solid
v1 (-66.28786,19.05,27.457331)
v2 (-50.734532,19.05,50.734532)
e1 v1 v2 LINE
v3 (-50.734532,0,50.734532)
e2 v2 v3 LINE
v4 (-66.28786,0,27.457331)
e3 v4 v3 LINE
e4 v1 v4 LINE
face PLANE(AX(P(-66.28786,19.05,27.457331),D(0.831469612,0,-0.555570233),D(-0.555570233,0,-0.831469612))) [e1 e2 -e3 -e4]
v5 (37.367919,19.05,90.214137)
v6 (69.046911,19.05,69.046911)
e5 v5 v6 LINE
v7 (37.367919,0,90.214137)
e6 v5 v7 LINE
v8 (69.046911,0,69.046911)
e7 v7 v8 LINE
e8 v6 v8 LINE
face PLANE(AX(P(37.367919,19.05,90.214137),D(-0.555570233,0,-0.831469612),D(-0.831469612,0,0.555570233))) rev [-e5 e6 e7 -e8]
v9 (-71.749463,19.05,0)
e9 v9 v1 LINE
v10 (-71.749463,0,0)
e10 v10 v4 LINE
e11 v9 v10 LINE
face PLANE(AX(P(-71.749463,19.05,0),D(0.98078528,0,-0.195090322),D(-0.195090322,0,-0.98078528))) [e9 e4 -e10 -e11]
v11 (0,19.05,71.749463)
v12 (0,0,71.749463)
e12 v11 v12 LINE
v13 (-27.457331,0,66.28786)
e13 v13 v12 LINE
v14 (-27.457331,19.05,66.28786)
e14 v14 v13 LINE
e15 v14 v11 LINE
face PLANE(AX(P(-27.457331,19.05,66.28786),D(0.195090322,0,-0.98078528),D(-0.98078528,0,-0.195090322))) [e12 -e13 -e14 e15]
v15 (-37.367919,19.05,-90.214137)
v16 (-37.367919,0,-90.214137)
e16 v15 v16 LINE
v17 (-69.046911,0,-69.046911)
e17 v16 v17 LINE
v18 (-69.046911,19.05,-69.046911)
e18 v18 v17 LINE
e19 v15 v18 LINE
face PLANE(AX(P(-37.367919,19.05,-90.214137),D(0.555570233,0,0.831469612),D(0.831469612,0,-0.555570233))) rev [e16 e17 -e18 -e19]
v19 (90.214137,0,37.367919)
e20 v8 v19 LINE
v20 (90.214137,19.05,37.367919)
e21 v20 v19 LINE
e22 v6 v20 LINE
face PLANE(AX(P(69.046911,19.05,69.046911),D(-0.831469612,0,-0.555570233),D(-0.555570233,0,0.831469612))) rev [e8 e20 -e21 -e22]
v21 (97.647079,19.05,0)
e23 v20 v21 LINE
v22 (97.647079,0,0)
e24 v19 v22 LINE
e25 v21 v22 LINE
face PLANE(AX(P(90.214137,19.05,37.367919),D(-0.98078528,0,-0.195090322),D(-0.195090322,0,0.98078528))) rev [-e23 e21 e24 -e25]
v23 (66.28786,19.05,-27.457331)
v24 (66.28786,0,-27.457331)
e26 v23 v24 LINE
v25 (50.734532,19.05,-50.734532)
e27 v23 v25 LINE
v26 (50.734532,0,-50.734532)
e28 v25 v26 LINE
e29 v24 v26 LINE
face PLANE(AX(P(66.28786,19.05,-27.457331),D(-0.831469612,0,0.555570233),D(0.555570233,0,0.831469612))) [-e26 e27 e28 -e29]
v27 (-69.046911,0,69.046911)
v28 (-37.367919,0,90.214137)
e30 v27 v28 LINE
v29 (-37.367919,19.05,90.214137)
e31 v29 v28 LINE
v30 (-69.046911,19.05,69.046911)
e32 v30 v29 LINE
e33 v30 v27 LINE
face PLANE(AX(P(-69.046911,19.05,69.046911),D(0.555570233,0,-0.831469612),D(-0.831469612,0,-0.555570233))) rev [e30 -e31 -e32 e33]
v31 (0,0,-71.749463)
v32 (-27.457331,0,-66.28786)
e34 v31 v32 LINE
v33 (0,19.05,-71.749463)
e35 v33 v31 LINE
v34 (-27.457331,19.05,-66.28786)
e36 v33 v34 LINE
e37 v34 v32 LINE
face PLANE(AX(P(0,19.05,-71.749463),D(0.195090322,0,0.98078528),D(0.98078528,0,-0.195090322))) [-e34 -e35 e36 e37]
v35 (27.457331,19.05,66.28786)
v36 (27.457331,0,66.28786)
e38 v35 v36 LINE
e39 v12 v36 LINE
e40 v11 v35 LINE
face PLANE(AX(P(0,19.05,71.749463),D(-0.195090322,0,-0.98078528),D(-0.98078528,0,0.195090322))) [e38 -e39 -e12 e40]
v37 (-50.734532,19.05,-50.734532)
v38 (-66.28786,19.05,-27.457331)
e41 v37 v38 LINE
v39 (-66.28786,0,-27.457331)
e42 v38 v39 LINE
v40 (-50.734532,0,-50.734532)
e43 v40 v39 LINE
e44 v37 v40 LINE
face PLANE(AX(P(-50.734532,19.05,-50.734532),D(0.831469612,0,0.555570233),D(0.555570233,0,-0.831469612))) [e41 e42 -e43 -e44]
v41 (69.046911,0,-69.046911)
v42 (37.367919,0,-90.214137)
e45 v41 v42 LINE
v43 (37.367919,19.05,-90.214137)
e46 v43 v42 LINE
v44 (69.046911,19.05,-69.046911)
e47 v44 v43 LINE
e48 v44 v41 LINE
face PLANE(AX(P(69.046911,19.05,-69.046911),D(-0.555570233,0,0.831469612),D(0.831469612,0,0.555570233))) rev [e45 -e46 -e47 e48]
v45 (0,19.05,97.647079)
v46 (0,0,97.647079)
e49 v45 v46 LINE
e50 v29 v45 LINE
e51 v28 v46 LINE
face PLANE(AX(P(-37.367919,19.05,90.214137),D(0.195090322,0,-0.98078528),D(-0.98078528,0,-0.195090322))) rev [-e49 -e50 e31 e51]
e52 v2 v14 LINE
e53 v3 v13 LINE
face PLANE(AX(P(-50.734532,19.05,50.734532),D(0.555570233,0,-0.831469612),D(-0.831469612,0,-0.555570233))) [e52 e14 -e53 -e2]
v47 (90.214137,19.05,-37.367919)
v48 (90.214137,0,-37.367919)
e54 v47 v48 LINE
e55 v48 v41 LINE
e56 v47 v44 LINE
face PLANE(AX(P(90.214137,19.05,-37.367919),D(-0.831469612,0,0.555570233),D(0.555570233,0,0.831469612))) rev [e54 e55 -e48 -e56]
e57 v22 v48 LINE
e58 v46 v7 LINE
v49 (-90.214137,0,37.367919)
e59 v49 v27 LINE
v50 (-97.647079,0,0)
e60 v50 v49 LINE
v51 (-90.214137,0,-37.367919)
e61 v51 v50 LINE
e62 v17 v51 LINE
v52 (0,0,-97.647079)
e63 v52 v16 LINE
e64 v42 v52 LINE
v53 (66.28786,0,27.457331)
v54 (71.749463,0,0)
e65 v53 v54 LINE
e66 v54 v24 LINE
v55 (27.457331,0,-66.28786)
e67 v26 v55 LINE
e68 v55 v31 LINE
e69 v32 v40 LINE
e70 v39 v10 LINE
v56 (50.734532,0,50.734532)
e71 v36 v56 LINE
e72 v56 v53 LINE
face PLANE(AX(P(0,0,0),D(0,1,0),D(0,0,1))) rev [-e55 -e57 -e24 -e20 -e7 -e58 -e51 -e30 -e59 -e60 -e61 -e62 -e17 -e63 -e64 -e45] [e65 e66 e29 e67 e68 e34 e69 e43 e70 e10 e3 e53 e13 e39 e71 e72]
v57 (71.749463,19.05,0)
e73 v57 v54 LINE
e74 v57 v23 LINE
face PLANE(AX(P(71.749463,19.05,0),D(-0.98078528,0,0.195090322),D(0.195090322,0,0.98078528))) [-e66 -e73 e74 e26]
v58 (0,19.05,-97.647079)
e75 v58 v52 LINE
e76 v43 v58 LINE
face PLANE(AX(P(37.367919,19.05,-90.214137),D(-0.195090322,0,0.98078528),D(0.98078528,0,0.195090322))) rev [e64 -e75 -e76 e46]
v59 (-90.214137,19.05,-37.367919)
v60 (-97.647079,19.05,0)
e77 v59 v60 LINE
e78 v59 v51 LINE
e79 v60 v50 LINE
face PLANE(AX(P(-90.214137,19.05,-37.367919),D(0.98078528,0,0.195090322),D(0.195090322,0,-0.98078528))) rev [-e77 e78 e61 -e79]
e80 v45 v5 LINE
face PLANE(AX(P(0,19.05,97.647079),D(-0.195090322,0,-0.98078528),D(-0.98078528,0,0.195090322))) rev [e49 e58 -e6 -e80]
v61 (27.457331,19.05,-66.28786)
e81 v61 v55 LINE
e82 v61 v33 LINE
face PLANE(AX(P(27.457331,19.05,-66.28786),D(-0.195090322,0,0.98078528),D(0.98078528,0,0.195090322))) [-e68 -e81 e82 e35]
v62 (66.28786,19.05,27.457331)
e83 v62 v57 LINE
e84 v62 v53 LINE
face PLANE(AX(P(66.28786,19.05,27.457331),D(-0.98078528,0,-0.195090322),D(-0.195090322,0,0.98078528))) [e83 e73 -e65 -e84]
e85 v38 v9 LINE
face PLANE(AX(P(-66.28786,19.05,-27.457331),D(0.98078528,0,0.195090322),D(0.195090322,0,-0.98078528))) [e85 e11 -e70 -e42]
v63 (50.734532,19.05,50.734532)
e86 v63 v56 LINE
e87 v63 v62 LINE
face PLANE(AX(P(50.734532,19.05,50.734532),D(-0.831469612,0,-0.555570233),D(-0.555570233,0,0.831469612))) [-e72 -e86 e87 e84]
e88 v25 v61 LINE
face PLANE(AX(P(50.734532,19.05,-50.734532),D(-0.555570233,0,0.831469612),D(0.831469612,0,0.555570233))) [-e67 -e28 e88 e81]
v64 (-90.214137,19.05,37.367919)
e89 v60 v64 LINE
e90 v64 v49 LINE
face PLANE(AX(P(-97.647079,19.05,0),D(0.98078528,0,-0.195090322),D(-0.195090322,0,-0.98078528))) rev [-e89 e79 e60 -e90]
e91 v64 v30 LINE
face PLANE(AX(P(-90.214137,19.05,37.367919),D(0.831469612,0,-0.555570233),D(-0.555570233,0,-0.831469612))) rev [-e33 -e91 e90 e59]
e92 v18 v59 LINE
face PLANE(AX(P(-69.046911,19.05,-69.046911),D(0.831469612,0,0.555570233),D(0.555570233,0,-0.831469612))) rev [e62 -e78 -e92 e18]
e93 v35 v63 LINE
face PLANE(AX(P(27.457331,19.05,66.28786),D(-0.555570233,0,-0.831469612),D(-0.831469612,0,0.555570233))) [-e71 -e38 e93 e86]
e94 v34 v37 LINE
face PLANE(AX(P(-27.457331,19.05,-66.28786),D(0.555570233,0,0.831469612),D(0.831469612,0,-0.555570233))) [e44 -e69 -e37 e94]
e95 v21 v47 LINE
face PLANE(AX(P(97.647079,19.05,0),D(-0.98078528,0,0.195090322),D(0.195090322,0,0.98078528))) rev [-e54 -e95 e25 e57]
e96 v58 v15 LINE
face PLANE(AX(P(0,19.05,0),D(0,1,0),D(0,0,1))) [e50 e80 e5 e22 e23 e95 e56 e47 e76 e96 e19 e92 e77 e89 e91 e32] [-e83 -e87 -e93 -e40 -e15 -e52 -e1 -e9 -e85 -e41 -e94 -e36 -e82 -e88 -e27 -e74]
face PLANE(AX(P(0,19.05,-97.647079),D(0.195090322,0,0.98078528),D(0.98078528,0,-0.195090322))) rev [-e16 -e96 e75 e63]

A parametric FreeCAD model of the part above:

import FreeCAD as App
import Part
import Sketcher
Q = App.Units.Quantity

doc = App.newDocument("Part")
body = doc.addObject("PartDesign::Body", "Body")

# Sketch on XZ plane
sketch1 = body.newObject("Sketcher::SketchObject", "Sketch")
sketch1.AttachmentSupport = (doc.getObject("XZ_Plane"), [""])
sketch1.MapMode = "FlatFace"
sketch1.addGeometry(Part.LineSegment(App.Vector(97.647079, 0, 0), App.Vector(90.214137, -37.367919, 0)), False)
sketch1.addGeometry(Part.LineSegment(App.Vector(90.214137, -37.367919, 0), App.Vector(69.046911, -69.046911, 0)), False)
sketch1.addGeometry(Part.LineSegment(App.Vector(69.046911, -69.046911, 0), App.Vector(37.367919, -90.214137, 0)), False)
sketch1.addGeometry(Part.LineSegment(App.Vector(37.367919, -90.214137, 0), App.Vector(0, -97.647079, 0)), False)
sketch1.addGeometry(Part.LineSegment(App.Vector(0, -97.647079, 0), App.Vector(-37.367919, -90.214137, 0)), False)
sketch1.addGeometry(Part.LineSegment(App.Vector(-37.367919, -90.214137, 0), App.Vector(-69.046911, -69.046911, 0)), False)
sketch1.addGeometry(Part.LineSegment(App.Vector(-69.046911, -69.046911, 0), App.Vector(-90.214137, -37.367919, 0)), False)
sketch1.addGeometry(Part.LineSegment(App.Vector(-90.214137, -37.367919, 0), App.Vector(-97.647079, 0, 0)), False)
sketch1.addGeometry(Part.LineSegment(App.Vector(-97.647079, 0, 0), App.Vector(-90.214137, 37.367919, 0)), False)
sketch1.addGeometry(Part.LineSegment(App.Vector(-90.214137, 37.367919, 0), App.Vector(-69.046911, 69.046911, 0)), False)
sketch1.addGeometry(Part.LineSegment(App.Vector(-69.046911, 69.046911, 0), App.Vector(-37.367919, 90.214137, 0)), False)
sketch1.addGeometry(Part.LineSegment(App.Vector(-37.367919, 90.214137, 0), App.Vector(0, 97.647079, 0)), False)
sketch1.addGeometry(Part.LineSegment(App.Vector(0, 97.647079, 0), App.Vector(37.367919, 90.214137, 0)), False)
sketch1.addGeometry(Part.LineSegment(App.Vector(37.367919, 90.214137, 0), App.Vector(69.046911, 69.046911, 0)), False)
sketch1.addGeometry(Part.LineSegment(App.Vector(69.046911, 69.046911, 0), App.Vector(90.214137, 37.367919, 0)), False)
sketch1.addGeometry(Part.LineSegment(App.Vector(90.214137, 37.367919, 0), App.Vector(97.647079, 0, 0)), False)
sketch1.addGeometry(Part.LineSegment(App.Vector(66.28786, -27.457331, 0), App.Vector(71.749463, 0, 0)), False)
sketch1.addGeometry(Part.LineSegment(App.Vector(71.749463, 0, 0), App.Vector(66.28786, 27.457331, 0)), False)
sketch1.addGeometry(Part.LineSegment(App.Vector(66.28786, 27.457331, 0), App.Vector(50.734532, 50.734532, 0)), False)
sketch1.addGeometry(Part.LineSegment(App.Vector(50.734532, 50.734532, 0), App.Vector(27.457331, 66.28786, 0)), False)
sketch1.addGeometry(Part.LineSegment(App.Vector(27.457331, 66.28786, 0), App.Vector(0, 71.749463, 0)), False)
sketch1.addGeometry(Part.LineSegment(App.Vector(0, 71.749463, 0), App.Vector(-27.457331, 66.28786, 0)), False)
sketch1.addGeometry(Part.LineSegment(App.Vector(-27.457331, 66.28786, 0), App.Vector(-50.734532, 50.734532, 0)), False)
sketch1.addGeometry(Part.LineSegment(App.Vector(-50.734532, 50.734532, 0), App.Vector(-66.28786, 27.457331, 0)), False)
sketch1.addGeometry(Part.LineSegment(App.Vector(-66.28786, 27.457331, 0), App.Vector(-71.749463, 0, 0)), False)
sketch1.addGeometry(Part.LineSegment(App.Vector(-71.749463, 0, 0), App.Vector(-66.28786, -27.457331, 0)), False)
sketch1.addGeometry(Part.LineSegment(App.Vector(-66.28786, -27.457331, 0), App.Vector(-50.734532, -50.734532, 0)), False)
sketch1.addGeometry(Part.LineSegment(App.Vector(-50.734532, -50.734532, 0), App.Vector(-27.457331, -66.28786, 0)), False)
sketch1.addGeometry(Part.LineSegment(App.Vector(-27.457331, -66.28786, 0), App.Vector(0, -71.749463, 0)), False)
sketch1.addGeometry(Part.LineSegment(App.Vector(0, -71.749463, 0), App.Vector(27.457331, -66.28786, 0)), False)
sketch1.addGeometry(Part.LineSegment(App.Vector(27.457331, -66.28786, 0), App.Vector(50.734532, -50.734532, 0)), False)
sketch1.addGeometry(Part.LineSegment(App.Vector(50.734532, -50.734532, 0), App.Vector(66.28786, -27.457331, 0)), False)
sketch1.addConstraint(Sketcher.Constraint("Coincident", 0, 2, 1, 1))
sketch1.addConstraint(Sketcher.Constraint("Coincident", 1, 2, 2, 1))
sketch1.addConstraint(Sketcher.Constraint("Coincident", 2, 2, 3, 1))
sketch1.addConstraint(Sketcher.Constraint("Coincident", 3, 2, 4, 1))
sketch1.addConstraint(Sketcher.Constraint("Coincident", 4, 2, 5, 1))
sketch1.addConstraint(Sketcher.Constraint("Coincident", 5, 2, 6, 1))
sketch1.addConstraint(Sketcher.Constraint("Coincident", 6, 2, 7, 1))
sketch1.addConstraint(Sketcher.Constraint("Coincident", 7, 2, 8, 1))
sketch1.addConstraint(Sketcher.Constraint("Coincident", 8, 2, 9, 1))
sketch1.addConstraint(Sketcher.Constraint("Coincident", 9, 2, 10, 1))
sketch1.addConstraint(Sketcher.Constraint("Coincident", 10, 2, 11, 1))
sketch1.addConstraint(Sketcher.Constraint("Coincident", 11, 2, 12, 1))
sketch1.addConstraint(Sketcher.Constraint("Coincident", 12, 2, 13, 1))
sketch1.addConstraint(Sketcher.Constraint("Coincident", 13, 2, 14, 1))
sketch1.addConstraint(Sketcher.Constraint("Coincident", 14, 2, 15, 1))
sketch1.addConstraint(Sketcher.Constraint("Coincident", 15, 2, 0, 1))
sketch1.addConstraint(Sketcher.Constraint("Coincident", 16, 2, 17, 1))
sketch1.addConstraint(Sketcher.Constraint("Coincident", 17, 2, 18, 1))
sketch1.addConstraint(Sketcher.Constraint("Coincident", 18, 2, 19, 1))
sketch1.addConstraint(Sketcher.Constraint("Coincident", 19, 2, 20, 1))
sketch1.addConstraint(Sketcher.Constraint("Coincident", 20, 2, 21, 1))
sketch1.addConstraint(Sketcher.Constraint("Coincident", 21, 2, 22, 1))
sketch1.addConstraint(Sketcher.Constraint("Coincident", 22, 2, 23, 1))
sketch1.addConstraint(Sketcher.Constraint("Coincident", 23, 2, 24, 1))
sketch1.addConstraint(Sketcher.Constraint("Coincident", 24, 2, 25, 1))
sketch1.addConstraint(Sketcher.Constraint("Coincident", 25, 2, 26, 1))
sketch1.addConstraint(Sketcher.Constraint("Coincident", 26, 2, 27, 1))
sketch1.addConstraint(Sketcher.Constraint("Coincident", 27, 2, 28, 1))
sketch1.addConstraint(Sketcher.Constraint("Coincident", 28, 2, 29, 1))
sketch1.addConstraint(Sketcher.Constraint("Coincident", 29, 2, 30, 1))
sketch1.addConstraint(Sketcher.Constraint("Coincident", 30, 2, 31, 1))
sketch1.addConstraint(Sketcher.Constraint("Coincident", 31, 2, 16, 1))
sketch1.addConstraint(Sketcher.Constraint("Symmetric", 0, 2, 8, 2, -1, 1))
sketch1.addConstraint(Sketcher.Constraint("Symmetric", 1, 2, 9, 2, -1, 1))
sketch1.addConstraint(Sketcher.Constraint("Symmetric", 2, 2, 10, 2, -1, 1))
sketch1.addConstraint(Sketcher.Constraint("Symmetric", 3, 2, 11, 2, -1, 1))
sketch1.addConstraint(Sketcher.Constraint("Symmetric", 4, 2, 12, 2, -1, 1))
sketch1.addConstraint(Sketcher.Constraint("Symmetric", 5, 2, 13, 2, -1, 1))
sketch1.addConstraint(Sketcher.Constraint("Symmetric", 6, 2, 14, 2, -1, 1))
sketch1.addConstraint(Sketcher.Constraint("Symmetric", 7, 2, 15, 2, -1, 1))
sketch1.addConstraint(Sketcher.Constraint("Symmetric", 16, 2, 24, 2, -1, 1))
sketch1.addConstraint(Sketcher.Constraint("Symmetric", 17, 2, 25, 2, -1, 1))
sketch1.addConstraint(Sketcher.Constraint("Symmetric", 18, 2, 26, 2, -1, 1))
sketch1.addConstraint(Sketcher.Constraint("Symmetric", 19, 2, 27, 2, -1, 1))
sketch1.addConstraint(Sketcher.Constraint("Symmetric", 20, 2, 28, 2, -1, 1))
sketch1.addConstraint(Sketcher.Constraint("Symmetric", 21, 2, 29, 2, -1, 1))
sketch1.addConstraint(Sketcher.Constraint("Symmetric", 22, 2, 30, 2, -1, 1))
sketch1.addConstraint(Sketcher.Constraint("Symmetric", 23, 2, 31, 2, -1, 1))
sketch1.addConstraint(Sketcher.Constraint("Symmetric", 2, 2, 4, 2, -2))
sketch1.addConstraint(Sketcher.Constraint("Symmetric", 1, 2, 5, 2, -2))
sketch1.addConstraint(Sketcher.Constraint("Symmetric", 0, 2, 6, 2, -2))
sketch1.addConstraint(Sketcher.Constraint("Symmetric", 19, 2, 21, 2, -2))
sketch1.addConstraint(Sketcher.Constraint("Symmetric", 18, 2, 22, 2, -2))
sketch1.addConstraint(Sketcher.Constraint("Symmetric", 17, 2, 23, 2, -2))
sketch1.addConstraint(Sketcher.Constraint("PointOnObject", 3, 2, -2))
sketch1.addConstraint(Sketcher.Constraint("PointOnObject", 7, 2, -1))
sketch1.addConstraint(Sketcher.Constraint("PointOnObject", 16, 2, -1))
sketch1.addConstraint(Sketcher.Constraint("PointOnObject", 20, 2, -2))
sketch1.addConstraint(Sketcher.Constraint("Perpendicular", 0, 4))
sketch1.addConstraint(Sketcher.Constraint("Perpendicular", 1, 5))
sketch1.addConstraint(Sketcher.Constraint("Perpendicular", 12, 16))
sketch1.addConstraint(Sketcher.Constraint("Parallel", 14, 18))
sketch1.addConstraint(Sketcher.Constraint("Parallel", 13, 19))
sketch1.addConstraint(Sketcher.Constraint("Perpendicular", 16, 20))
sketch1.addConstraint(Sketcher.Constraint("Equal", 0, 1))
sketch1.addConstraint(Sketcher.Constraint("Equal", 1, 2))
sketch1.addConstraint(Sketcher.Constraint("Equal", 2, 3))
sketch1.addConstraint(Sketcher.Constraint("Equal", 17, 18))
sketch1.addConstraint(Sketcher.Constraint("Equal", 18, 19))
sketch1.addConstraint(Sketcher.Constraint("Equal", 19, 20))
sketch1.addConstraint(Sketcher.Constraint("Distance", 0, Q("1.5 in")))
sketch1.addConstraint(Sketcher.Constraint("Angle", 0, Q("-101.25 deg")))
sketch1.addConstraint(Sketcher.Constraint("Angle", 1, Q("-123.75 deg")))
sketch1.addConstraint(Sketcher.Constraint("DistanceY", 17, 2, 18, 2, Q("23.277201 mm")))
pad1 = body.newObject("PartDesign::Pad", "Pad")
pad1.Profile = sketch1
pad1.Length = Q("0.75 in")
pad1.Reversed = True

doc.recompute()
